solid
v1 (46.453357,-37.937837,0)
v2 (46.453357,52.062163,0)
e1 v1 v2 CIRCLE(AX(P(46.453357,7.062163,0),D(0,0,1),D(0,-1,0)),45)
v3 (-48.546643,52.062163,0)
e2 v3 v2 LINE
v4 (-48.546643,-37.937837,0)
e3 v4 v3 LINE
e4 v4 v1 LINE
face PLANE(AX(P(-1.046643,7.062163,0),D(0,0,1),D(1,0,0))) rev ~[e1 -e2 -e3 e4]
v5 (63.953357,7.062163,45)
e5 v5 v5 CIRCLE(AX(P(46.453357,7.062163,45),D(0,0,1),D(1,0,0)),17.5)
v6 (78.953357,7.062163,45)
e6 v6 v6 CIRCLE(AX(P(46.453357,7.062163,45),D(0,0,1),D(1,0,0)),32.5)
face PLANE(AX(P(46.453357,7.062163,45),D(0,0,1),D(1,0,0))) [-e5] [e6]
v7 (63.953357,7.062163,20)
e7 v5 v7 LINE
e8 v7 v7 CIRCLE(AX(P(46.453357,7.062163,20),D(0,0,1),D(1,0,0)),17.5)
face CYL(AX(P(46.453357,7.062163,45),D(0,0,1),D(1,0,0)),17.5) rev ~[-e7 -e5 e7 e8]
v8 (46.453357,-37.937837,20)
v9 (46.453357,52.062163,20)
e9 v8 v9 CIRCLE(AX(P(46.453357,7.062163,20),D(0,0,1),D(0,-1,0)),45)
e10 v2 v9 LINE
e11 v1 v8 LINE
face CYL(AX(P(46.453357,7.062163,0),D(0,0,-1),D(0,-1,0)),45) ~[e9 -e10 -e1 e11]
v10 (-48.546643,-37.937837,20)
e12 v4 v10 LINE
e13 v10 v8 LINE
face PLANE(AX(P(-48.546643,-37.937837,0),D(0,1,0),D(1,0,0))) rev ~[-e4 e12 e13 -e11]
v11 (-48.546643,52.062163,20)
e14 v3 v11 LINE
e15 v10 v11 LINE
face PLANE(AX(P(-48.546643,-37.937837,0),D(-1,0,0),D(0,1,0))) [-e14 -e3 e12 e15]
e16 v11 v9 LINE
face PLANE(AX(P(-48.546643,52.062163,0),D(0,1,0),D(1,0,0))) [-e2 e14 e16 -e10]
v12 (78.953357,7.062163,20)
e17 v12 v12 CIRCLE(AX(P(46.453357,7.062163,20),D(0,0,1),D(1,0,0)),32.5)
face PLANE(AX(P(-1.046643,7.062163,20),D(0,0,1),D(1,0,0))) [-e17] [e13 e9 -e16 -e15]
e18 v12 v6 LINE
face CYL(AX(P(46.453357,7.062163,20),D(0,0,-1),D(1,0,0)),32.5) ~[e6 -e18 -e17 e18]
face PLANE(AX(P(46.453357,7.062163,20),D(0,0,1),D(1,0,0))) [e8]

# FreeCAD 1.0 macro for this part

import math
import FreeCAD as App
import Part
import Sketcher

doc = App.newDocument("Part")
params = doc.addObject("Spreadsheet::Sheet", "Params")
for row, (alias, value) in enumerate([
    ("sketch1_radius", "45 mm"),
    ("sketch1_width", "95 mm"),
    ("pad1_length", "20 mm"),
    ("sketch2_diameter", "65 mm"),
    ("pad2_length", "25 mm"),
    ("sketch3_diameter", "35 mm"),
    ("pocket1_length", "25 mm"),
], start=1):
    params.set(f"A{row}", alias)
    params.set(f"B{row}", "=" + value)
    params.setAlias(f"B{row}", alias)

body = doc.addObject("PartDesign::Body", "Body")

# Sketch on XY plane
sketch1 = body.newObject("Sketcher::SketchObject", "Sketch")
sketch1.AttachmentSupport = (doc.getObject("XY_Plane"), [""])
sketch1.MapMode = "FlatFace"
sketch1.addGeometry([
    Part.LineSegment(App.Vector(-49, 52, 0), App.Vector(-49, -38, 0)),
    Part.LineSegment(App.Vector(-49, -38, 0), App.Vector(46, -38, 0)),
    Part.ArcOfCircle(Part.Circle(App.Vector(46, 7, 0), App.Vector(0, 0, 1), 45), math.radians(-90), math.radians(90)),
    Part.LineSegment(App.Vector(46, 52, 0), App.Vector(-49, 52, 0)),
], False)
sketch1.addConstraint([
    Sketcher.Constraint("Coincident", 0, 2, 1, 1),
    Sketcher.Constraint("Tangent", 1, 2, 2, 1),
    Sketcher.Constraint("Tangent", 2, 2, 3, 1),
    Sketcher.Constraint("Coincident", 3, 2, 0, 1),
    Sketcher.Constraint("Vertical", 0),
    Sketcher.Constraint("Horizontal", 1),
    Sketcher.Constraint("Horizontal", 3),
    Sketcher.Constraint("Radius", 2, 45.0),
    Sketcher.Constraint("DistanceX", 1, 1, 1, 2, 95.0),
    Sketcher.Constraint("DistanceX", -1, 1, 2, 3, 46.453357),
    Sketcher.Constraint("DistanceY", -1, 1, 2, 3, 7.062163),
])
sketch1.setExpression("Constraints[7]", "Params.sketch1_radius")
sketch1.setExpression("Constraints[8]", "Params.sketch1_width")
pad1 = body.newObject("PartDesign::Pad", "Pad")
pad1.Profile = sketch1
pad1.setExpression("Length", "Params.pad1_length")

# Sketch on XY plane
sketch2 = body.newObject("Sketcher::SketchObject", "Sketch001")
sketch2.AttachmentSupport = (doc.getObject("XY_Plane"), [""])
sketch2.MapMode = "FlatFace"
sketch2.AttachmentOffset = App.Placement(App.Vector(0, 0, 20), App.Rotation())
sketch2.addGeometry(Part.Circle(App.Vector(46, 7, 0), App.Vector(0, 0, 1), 32), False)
sketch2.addConstraint([
    Sketcher.Constraint("Diameter", 0, 65.0),
    Sketcher.Constraint("DistanceX", -1, 1, 0, 3, 46.453357),
    Sketcher.Constraint("DistanceY", -1, 1, 0, 3, 7.062163),
])
sketch2.setExpression("Constraints[0]", "Params.sketch2_diameter")
pad2 = body.newObject("PartDesign::Pad", "Pad001")
pad2.Profile = sketch2
pad2.setExpression("Length", "Params.pad2_length")

# Sketch on XY plane
sketch3 = body.newObject("Sketcher::SketchObject", "Sketch002")
sketch3.AttachmentSupport = (doc.getObject("XY_Plane"), [""])
sketch3.MapMode = "FlatFace"
sketch3.AttachmentOffset = App.Placement(App.Vector(0, 0, 45), App.Rotation())
sketch3.addGeometry(Part.Circle(App.Vector(46, 7, 0), App.Vector(0, 0, 1), 18), False)
sketch3.addConstraint([
    Sketcher.Constraint("Diameter", 0, 35.0),
    Sketcher.Constraint("DistanceX", -1, 1, 0, 3, 46.453357),
    Sketcher.Constraint("DistanceY", -1, 1, 0, 3, 7.062163),
])
sketch3.setExpression("Constraints[0]", "Params.sketch3_diameter")
pocket1 = body.newObject("PartDesign::Pocket", "Pocket")
pocket1.Profile = sketch3
pocket1.setExpression("Length", "Params.pocket1_length")

doc.recompute()
